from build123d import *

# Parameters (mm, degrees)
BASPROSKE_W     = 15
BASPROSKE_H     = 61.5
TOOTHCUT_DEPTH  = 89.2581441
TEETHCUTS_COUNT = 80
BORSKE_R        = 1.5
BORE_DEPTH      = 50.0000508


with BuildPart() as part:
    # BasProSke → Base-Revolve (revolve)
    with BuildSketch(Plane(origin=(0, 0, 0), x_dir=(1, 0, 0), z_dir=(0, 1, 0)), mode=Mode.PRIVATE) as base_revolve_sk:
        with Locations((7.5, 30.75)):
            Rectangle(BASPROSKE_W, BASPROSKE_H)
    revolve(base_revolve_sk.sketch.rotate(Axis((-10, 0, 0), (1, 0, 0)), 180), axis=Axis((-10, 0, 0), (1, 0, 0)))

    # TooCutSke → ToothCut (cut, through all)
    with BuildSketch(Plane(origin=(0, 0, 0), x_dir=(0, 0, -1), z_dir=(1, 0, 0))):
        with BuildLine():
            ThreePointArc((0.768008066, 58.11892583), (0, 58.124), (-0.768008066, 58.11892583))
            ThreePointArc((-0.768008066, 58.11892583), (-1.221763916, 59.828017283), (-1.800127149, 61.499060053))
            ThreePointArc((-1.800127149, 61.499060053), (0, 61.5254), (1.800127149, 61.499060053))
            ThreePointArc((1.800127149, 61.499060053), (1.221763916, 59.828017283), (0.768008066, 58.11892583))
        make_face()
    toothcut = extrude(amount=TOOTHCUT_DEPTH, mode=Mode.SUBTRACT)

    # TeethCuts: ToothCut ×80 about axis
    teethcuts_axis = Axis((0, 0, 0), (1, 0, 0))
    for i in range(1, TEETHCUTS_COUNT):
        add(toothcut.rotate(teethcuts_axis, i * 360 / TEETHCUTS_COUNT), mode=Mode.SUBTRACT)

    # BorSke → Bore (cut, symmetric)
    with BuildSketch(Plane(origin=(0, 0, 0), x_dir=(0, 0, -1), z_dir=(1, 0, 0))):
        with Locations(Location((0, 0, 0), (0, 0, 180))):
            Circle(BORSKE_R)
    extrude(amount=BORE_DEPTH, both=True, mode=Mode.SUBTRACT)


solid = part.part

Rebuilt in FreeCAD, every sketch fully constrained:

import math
import FreeCAD as App
import Part
import Sketcher

V = App.Vector

doc = App.newDocument("Part")
body = doc.addObject("PartDesign::Body", "Body")

# Sketch on XZ plane
sketch1 = doc.addObject("Sketcher::SketchObject", "Sketch")
body.addObject(sketch1)
sketch1.AttachmentSupport = (doc.XZ_Plane, [""])
sketch1.MapMode = "FlatFace"
sketch1.addGeometry([
    Part.LineSegment(V(0, -62, 0), V(0, 0, 0)),
    Part.LineSegment(V(0, 0, 0), V(15, 0, 0)),
    Part.LineSegment(V(15, 0, 0), V(15, -62, 0)),
    Part.LineSegment(V(15, -62, 0), V(0, -62, 0)),
], False)
sketch1.addConstraint([
    Sketcher.Constraint("Coincident", 0, 2, 1, 1),
    Sketcher.Constraint("Coincident", 1, 2, 2, 1),
    Sketcher.Constraint("Coincident", 2, 2, 3, 1),
    Sketcher.Constraint("Coincident", 3, 2, 0, 1),
    Sketcher.Constraint("Vertical", 0),
    Sketcher.Constraint("Horizontal", 1),
    Sketcher.Constraint("Vertical", 2),
    Sketcher.Constraint("Horizontal", 3),
    Sketcher.Constraint("Coincident", 0, 2, -1, 1),
    Sketcher.Constraint("DistanceX", 1, 1, 1, 2, 15.0),
    Sketcher.Constraint("DistanceY", 0, 1, 0, 2, 61.5),
])
revolution = doc.addObject("PartDesign::Revolution", "Revolution")
body.addObject(revolution)
revolution.Profile = sketch1
revolution.ReferenceAxis = (sketch1, ["H_Axis"])
revolution.Angle = 360

# Sketch on YZ plane
sketch2 = doc.addObject("Sketcher::SketchObject", "Sketch001")
body.addObject(sketch2)
sketch2.AttachmentSupport = (doc.YZ_Plane, [""])
sketch2.MapMode = "FlatFace"
sketch2.addGeometry([
    Part.ArcOfCircle(Part.Circle(V(0, 0, 0), V(0, 0, 1), 58.1), math.radians(-0.76), math.radians(0.76)),
    Part.ArcOfCircle(Part.Circle(V(52.8, -24.2, 0), V(0, 0, 1), 24), math.radians(68.8), math.radians(77.24)),
    Part.ArcOfCircle(Part.Circle(V(0, 0, 0), V(0, 0, 1), 61.5), math.radians(-1.68), math.radians(1.68)),
    Part.ArcOfCircle(Part.Circle(V(52.8, 24.2, 0), V(0, 0, 1), 24), math.radians(-77.24), math.radians(-68.8)),
], False)
sketch2.addConstraint([
    Sketcher.Constraint("Coincident", 0, 1, 1, 2),
    Sketcher.Constraint("Coincident", 1, 1, 2, 1),
    Sketcher.Constraint("Coincident", 2, 2, 3, 2),
    Sketcher.Constraint("Coincident", 3, 1, 0, 2),
    Sketcher.Constraint("Coincident", 0, 3, -1, 1),
    Sketcher.Constraint("Coincident", 2, 3, -1, 1),
    Sketcher.Constraint("Equal", 1, 3),
    Sketcher.Constraint("Symmetric", 1, 3, 3, 3, -1),
    Sketcher.Constraint("Radius", 1, 24.0),
    Sketcher.Constraint("Radius", 2, 61.5254),
    Sketcher.Constraint("Radius", 0, 58.124002),
    Sketcher.Constraint("DistanceY", 1, 3, 1, 1, 22.375402),
    Sketcher.Constraint("DistanceX", -1, 1, 1, 3, 52.819118),
])
pocket1 = doc.addObject("PartDesign::Pocket", "Pocket")
body.addObject(pocket1)
pocket1.Profile = sketch2
pocket1.Type = "ThroughAll"
pocket1.Reversed = True
doc.recompute()

polarpattern = doc.addObject("PartDesign::PolarPattern", "PolarPattern")
body.addObject(polarpattern)
polarpattern.Originals = [pocket1]
polarpattern.Axis = (doc.X_Axis, [""])
polarpattern.Angle = 360
polarpattern.Occurrences = 80
body.Tip = polarpattern

# Sketch on YZ plane
sketch3 = doc.addObject("Sketcher::SketchObject", "Sketch002")
body.addObject(sketch3)
sketch3.AttachmentSupport = (doc.YZ_Plane, [""])
sketch3.MapMode = "FlatFace"
sketch3.addGeometry(Part.Circle(V(0, 0, 0), V(0, 0, 1), 1.5), False)
sketch3.addConstraint([
    Sketcher.Constraint("Coincident", 0, 3, -1, 1),
    Sketcher.Constraint("Diameter", 0, 3.0),
])
pocket2 = doc.addObject("PartDesign::Pocket", "Pocket001")
body.addObject(pocket2)
pocket2.Profile = sketch3
pocket2.Length = 100.000102
pocket2.Midplane = True

doc.recompute()
